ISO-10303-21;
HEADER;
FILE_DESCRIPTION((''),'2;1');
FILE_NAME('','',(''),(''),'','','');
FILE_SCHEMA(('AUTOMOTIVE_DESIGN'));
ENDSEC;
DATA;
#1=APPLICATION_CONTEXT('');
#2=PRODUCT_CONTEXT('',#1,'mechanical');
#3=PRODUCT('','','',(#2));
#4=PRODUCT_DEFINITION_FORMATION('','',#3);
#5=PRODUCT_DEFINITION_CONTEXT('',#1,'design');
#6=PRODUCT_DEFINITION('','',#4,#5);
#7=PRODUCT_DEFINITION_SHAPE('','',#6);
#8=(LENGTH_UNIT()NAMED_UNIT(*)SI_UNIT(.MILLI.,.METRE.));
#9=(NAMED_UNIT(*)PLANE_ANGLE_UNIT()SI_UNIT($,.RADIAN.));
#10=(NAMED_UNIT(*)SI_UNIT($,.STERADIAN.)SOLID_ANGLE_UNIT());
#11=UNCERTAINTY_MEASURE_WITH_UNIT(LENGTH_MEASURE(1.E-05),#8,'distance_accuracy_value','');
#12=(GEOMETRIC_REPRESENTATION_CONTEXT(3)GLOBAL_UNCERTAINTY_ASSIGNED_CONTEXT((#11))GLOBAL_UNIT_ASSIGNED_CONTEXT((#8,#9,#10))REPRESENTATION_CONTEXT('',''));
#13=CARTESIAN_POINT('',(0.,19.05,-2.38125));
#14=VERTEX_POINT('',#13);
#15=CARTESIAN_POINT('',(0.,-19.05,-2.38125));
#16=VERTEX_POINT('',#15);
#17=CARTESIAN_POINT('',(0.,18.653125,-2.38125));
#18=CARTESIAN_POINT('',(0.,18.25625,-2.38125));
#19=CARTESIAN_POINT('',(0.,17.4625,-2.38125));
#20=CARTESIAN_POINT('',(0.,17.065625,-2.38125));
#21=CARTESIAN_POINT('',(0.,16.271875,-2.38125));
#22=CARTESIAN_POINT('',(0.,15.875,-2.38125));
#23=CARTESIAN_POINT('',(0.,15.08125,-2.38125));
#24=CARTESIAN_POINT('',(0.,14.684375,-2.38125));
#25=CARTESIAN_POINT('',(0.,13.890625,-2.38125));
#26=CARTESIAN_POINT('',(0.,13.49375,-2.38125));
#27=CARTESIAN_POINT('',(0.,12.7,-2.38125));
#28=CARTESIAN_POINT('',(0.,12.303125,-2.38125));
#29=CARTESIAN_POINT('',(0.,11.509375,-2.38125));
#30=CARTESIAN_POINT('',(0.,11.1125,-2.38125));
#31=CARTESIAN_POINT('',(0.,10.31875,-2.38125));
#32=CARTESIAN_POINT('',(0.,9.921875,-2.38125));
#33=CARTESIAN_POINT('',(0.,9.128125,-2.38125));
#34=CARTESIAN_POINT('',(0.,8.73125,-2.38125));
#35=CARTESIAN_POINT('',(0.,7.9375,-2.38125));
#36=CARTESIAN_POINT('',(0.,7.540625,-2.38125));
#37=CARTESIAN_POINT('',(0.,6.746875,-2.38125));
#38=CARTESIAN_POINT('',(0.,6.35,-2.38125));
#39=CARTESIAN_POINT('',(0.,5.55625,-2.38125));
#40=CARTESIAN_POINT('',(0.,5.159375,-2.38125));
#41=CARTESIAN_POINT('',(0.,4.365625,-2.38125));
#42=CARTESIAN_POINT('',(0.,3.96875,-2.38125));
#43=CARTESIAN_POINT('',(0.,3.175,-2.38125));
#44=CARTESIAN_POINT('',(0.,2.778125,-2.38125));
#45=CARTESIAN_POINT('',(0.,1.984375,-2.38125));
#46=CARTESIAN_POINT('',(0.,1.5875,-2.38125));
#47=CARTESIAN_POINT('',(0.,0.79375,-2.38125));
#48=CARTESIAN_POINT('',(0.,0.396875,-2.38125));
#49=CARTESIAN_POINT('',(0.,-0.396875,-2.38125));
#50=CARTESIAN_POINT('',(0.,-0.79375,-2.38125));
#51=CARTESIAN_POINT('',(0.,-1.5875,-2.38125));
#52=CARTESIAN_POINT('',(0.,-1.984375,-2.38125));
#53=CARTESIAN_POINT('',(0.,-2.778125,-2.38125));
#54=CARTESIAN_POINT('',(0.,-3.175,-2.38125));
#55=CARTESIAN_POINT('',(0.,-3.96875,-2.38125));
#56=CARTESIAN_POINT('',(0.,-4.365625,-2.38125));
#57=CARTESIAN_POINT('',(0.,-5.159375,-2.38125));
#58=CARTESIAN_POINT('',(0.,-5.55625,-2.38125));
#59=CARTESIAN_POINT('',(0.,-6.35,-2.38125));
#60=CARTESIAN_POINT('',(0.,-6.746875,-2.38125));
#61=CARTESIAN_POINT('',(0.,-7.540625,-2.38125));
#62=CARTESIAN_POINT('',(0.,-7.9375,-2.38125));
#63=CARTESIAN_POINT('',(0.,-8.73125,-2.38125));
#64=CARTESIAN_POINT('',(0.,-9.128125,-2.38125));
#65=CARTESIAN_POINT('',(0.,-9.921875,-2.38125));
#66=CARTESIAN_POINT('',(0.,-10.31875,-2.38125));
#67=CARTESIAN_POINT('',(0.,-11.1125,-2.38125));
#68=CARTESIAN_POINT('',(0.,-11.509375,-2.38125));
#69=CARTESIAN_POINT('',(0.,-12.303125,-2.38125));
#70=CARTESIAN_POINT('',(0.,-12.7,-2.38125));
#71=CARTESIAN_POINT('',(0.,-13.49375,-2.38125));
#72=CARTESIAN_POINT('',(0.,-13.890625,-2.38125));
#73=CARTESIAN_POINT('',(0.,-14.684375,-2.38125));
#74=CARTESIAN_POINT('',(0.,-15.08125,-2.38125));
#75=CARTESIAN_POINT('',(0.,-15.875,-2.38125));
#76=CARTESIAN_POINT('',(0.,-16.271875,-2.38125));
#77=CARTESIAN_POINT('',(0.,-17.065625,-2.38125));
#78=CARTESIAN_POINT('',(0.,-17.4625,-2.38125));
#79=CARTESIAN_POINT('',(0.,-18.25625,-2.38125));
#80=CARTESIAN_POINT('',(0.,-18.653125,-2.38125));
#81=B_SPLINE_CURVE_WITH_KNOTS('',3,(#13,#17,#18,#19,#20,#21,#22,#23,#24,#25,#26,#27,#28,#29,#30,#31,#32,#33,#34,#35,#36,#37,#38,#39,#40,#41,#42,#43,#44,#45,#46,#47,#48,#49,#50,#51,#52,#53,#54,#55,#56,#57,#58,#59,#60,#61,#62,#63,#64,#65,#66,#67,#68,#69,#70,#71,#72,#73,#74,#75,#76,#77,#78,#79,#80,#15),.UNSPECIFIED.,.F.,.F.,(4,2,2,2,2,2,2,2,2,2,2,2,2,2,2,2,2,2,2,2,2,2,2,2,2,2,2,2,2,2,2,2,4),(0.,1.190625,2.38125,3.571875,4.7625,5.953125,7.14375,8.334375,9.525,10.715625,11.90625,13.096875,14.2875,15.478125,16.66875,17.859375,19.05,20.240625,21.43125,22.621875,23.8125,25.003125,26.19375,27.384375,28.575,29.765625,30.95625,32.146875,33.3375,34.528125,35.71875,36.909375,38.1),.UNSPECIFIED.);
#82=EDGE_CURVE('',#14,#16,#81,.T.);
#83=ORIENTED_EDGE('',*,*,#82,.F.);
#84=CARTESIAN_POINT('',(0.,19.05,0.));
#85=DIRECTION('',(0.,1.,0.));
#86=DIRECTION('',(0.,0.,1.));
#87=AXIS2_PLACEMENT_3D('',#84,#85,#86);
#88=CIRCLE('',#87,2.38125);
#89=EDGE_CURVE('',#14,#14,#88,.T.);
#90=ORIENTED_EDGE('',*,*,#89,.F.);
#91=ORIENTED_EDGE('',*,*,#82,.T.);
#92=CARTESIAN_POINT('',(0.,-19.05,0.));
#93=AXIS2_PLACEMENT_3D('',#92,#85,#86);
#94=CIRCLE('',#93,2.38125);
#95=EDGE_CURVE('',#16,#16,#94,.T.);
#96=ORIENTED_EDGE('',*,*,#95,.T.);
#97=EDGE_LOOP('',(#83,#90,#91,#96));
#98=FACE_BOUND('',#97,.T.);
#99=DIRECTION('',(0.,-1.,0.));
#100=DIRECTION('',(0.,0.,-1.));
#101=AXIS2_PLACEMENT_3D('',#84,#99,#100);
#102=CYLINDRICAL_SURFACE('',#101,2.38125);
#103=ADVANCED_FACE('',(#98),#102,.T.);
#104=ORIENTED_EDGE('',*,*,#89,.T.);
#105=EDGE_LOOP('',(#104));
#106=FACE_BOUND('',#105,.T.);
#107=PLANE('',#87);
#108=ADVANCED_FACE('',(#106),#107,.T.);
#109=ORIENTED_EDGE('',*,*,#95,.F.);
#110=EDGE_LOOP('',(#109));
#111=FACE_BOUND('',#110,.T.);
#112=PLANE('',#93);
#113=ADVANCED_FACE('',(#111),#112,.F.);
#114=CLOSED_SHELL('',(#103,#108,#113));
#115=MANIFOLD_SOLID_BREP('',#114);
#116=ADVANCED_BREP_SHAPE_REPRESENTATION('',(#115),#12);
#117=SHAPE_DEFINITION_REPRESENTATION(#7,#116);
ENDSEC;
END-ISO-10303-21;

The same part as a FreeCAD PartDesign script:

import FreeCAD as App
import Part
import Sketcher
Q = App.Units.Quantity

doc = App.newDocument("Part")
body = doc.addObject("PartDesign::Body", "Body")

# Sketch on XZ plane
sketch1 = body.newObject("Sketcher::SketchObject", "Sketch")
sketch1.AttachmentSupport = (doc.getObject("XZ_Plane"), [""])
sketch1.MapMode = "FlatFace"
sketch1.addGeometry(Part.Circle(App.Vector(0, 0, 0), App.Vector(0, 0, 1), 2.4), False)
sketch1.addConstraint([
    Sketcher.Constraint("Coincident", 0, 3, -1, 1),
    Sketcher.Constraint("Diameter", 0, Q("0.1875 in")),
])
pad1 = body.newObject("PartDesign::Pad", "Pad")
pad1.Profile = sketch1
pad1.Length = Q("1.5 in")
pad1.Midplane = True

doc.recompute()
